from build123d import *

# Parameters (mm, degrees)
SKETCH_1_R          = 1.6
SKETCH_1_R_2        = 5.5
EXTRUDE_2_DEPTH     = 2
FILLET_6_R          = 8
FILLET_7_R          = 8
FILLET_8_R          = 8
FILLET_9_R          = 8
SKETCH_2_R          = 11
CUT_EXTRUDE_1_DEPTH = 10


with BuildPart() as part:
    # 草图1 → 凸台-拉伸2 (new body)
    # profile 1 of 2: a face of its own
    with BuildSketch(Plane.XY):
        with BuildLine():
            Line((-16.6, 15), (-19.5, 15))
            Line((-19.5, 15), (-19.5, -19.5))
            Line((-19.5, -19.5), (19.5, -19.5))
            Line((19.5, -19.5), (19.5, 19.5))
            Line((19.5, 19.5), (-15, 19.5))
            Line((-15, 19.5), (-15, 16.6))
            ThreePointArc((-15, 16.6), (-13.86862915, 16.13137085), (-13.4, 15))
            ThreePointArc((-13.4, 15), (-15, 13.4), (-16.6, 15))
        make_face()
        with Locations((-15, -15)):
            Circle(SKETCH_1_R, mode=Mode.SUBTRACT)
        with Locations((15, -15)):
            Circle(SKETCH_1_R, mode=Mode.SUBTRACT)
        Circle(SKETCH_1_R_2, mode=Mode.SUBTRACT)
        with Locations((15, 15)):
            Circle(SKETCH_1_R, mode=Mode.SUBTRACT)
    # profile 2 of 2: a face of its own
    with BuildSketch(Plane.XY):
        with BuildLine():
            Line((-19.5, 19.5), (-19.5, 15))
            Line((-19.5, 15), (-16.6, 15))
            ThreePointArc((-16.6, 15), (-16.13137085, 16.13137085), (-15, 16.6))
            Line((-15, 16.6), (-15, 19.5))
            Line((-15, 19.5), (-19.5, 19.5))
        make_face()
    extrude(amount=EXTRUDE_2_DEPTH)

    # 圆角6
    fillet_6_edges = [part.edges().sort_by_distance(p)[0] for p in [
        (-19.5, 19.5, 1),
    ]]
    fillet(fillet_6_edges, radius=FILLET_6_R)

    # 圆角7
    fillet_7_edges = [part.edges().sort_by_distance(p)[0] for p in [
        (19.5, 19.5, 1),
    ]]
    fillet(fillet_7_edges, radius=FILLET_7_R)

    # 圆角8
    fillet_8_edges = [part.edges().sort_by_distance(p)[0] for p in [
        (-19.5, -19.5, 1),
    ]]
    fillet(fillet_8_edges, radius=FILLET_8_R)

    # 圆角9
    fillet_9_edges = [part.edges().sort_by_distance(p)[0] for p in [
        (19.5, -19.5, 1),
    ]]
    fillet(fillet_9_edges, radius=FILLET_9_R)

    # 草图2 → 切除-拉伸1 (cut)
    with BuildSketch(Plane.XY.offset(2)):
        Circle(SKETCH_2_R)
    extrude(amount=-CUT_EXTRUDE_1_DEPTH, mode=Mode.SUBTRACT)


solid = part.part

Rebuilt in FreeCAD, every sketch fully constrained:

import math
import FreeCAD as App
import Part
import Sketcher
Q = App.Units.Quantity


def edges_at(feature, points):
    """Names of the edges that pass closest to the given points."""
    edges = feature.Shape.Edges
    near = lambda p: min(range(len(edges)), key=lambda i: edges[i].distToShape(Part.Vertex(*p))[0])
    return sorted({f"Edge{near(p) + 1}" for p in points})

doc = App.newDocument("Part")
body = doc.addObject("PartDesign::Body", "Body")

sketch1 = doc.addObject("Sketcher::SketchObject", "Sketch")
body.addObject(sketch1)
sketch1.AttachmentSupport = (doc.XY_Plane, [""])
sketch1.MapMode = "FlatFace"
sketch1.addGeometry([
    Part.LineSegment(App.Vector(-19.5, -19.5, 0), App.Vector(19.5, -19.5, 0)),
    Part.LineSegment(App.Vector(19.5, -19.5, 0), App.Vector(19.5, 19.5, 0)),
    Part.LineSegment(App.Vector(19.5, 19.5, 0), App.Vector(-19.5, 19.5, 0)),
    Part.LineSegment(App.Vector(-19.5, 19.5, 0), App.Vector(-19.5, -19.5, 0)),
    Part.ArcOfCircle(Part.Circle(App.Vector(-15, 15, 0), App.Vector(0, 0, 1), 1.6), math.radians(180), math.radians(360)),
    Part.ArcOfCircle(Part.Circle(App.Vector(-15, 15, 0), App.Vector(0, 0, 1), 1.6), math.radians(90), math.radians(180)),
    Part.ArcOfCircle(Part.Circle(App.Vector(-15, 15, 0), App.Vector(0, 0, 1), 1.6), math.radians(0), math.radians(90)),
    Part.Circle(App.Vector(-15, -15, 0), App.Vector(0, 0, 1), 1.6),
    Part.Circle(App.Vector(15, -15, 0), App.Vector(0, 0, 1), 1.6),
    Part.Circle(App.Vector(0, 0, 0), App.Vector(0, 0, 1), 5.5),
    Part.Circle(App.Vector(15, 15, 0), App.Vector(0, 0, 1), 1.6),
], False)
sketch1.addConstraint([
    Sketcher.Constraint("Coincident", 0, 2, 1, 1),
    Sketcher.Constraint("Coincident", 1, 2, 2, 1),
    Sketcher.Constraint("Coincident", 2, 2, 3, 1),
    Sketcher.Constraint("Coincident", 3, 2, 0, 1),
    Sketcher.Constraint("Tangent", 4, 1, 5, 2),
    Sketcher.Constraint("Tangent", 5, 1, 6, 2),
    Sketcher.Constraint("Tangent", 6, 1, 4, 2),
    Sketcher.Constraint("Horizontal", 0),
    Sketcher.Constraint("Vertical", 1),
    Sketcher.Constraint("Horizontal", 2),
    Sketcher.Constraint("Vertical", 3),
    Sketcher.Constraint("Coincident", 9, 3, -1, 1),
    Sketcher.Constraint("Equal", 6, 7),
    Sketcher.Constraint("Equal", 7, 8),
    Sketcher.Constraint("Equal", 8, 10),
    Sketcher.Constraint("Symmetric", 4, 3, 8, 3, -1, 1),
    Sketcher.Constraint("Symmetric", 7, 3, 10, 3, -1, 1),
    Sketcher.Constraint("Symmetric", 0, 2, 2, 2, -1, 1),
    Sketcher.Constraint("Symmetric", 7, 3, 8, 3, -2),
    Sketcher.Constraint("Horizontal", 10, 3, 4, 1),
    Sketcher.Constraint("Horizontal", 4, 1, 6, 1),
    Sketcher.Constraint("Vertical", 7, 3, 5, 1),
    Sketcher.Constraint("Equal", 2, 1),
    Sketcher.Constraint("Diameter", 9, Q("11 mm")),
    Sketcher.Constraint("Diameter", 7, Q("3.2 mm")),
    Sketcher.Constraint("DistanceX", 0, 1, 0, 2, Q("39 mm")),
    Sketcher.Constraint("DistanceX", 4, 3, -1, 1, Q("15 mm")),
    Sketcher.Constraint("DistanceY", -1, 1, 4, 3, Q("15 mm")),
])
pad1 = doc.addObject("PartDesign::Pad", "Pad")
body.addObject(pad1)
pad1.Profile = sketch1
pad1.Length = 2
doc.recompute()

fillet = doc.addObject("PartDesign::Fillet", "Fillet")
body.addObject(fillet)
fillet.Base = (pad1, edges_at(pad1, [(-19.5, 19.5, 1)]))
fillet.Radius = 8
doc.recompute()

fillet2 = doc.addObject("PartDesign::Fillet", "Fillet001")
body.addObject(fillet2)
fillet2.Base = (fillet, edges_at(fillet, [(19.5, 19.5, 1)]))
fillet2.Radius = 8
doc.recompute()

fillet3 = doc.addObject("PartDesign::Fillet", "Fillet002")
body.addObject(fillet3)
fillet3.Base = (fillet2, edges_at(fillet2, [(-19.5, -19.5, 1)]))
fillet3.Radius = 8
doc.recompute()

fillet4 = doc.addObject("PartDesign::Fillet", "Fillet003")
body.addObject(fillet4)
fillet4.Base = (fillet3, edges_at(fillet3, [(19.5, -19.5, 1)]))
fillet4.Radius = 8

sketch2 = doc.addObject("Sketcher::SketchObject", "Sketch001")
body.addObject(sketch2)
sketch2.AttachmentSupport = (doc.XY_Plane, [""])
sketch2.MapMode = "FlatFace"
sketch2.AttachmentOffset = App.Placement(App.Vector(0, 0, 2), App.Rotation())
sketch2.addGeometry(Part.Circle(App.Vector(0, 0, 0), App.Vector(0, 0, 1), 11), False)
sketch2.addConstraint([
    Sketcher.Constraint("Coincident", 0, 3, -1, 1),
    Sketcher.Constraint("Diameter", 0, Q("22 mm")),
])
pocket1 = doc.addObject("PartDesign::Pocket", "Pocket")
body.addObject(pocket1)
pocket1.Profile = sketch2
pocket1.Length = 10

doc.recompute()
